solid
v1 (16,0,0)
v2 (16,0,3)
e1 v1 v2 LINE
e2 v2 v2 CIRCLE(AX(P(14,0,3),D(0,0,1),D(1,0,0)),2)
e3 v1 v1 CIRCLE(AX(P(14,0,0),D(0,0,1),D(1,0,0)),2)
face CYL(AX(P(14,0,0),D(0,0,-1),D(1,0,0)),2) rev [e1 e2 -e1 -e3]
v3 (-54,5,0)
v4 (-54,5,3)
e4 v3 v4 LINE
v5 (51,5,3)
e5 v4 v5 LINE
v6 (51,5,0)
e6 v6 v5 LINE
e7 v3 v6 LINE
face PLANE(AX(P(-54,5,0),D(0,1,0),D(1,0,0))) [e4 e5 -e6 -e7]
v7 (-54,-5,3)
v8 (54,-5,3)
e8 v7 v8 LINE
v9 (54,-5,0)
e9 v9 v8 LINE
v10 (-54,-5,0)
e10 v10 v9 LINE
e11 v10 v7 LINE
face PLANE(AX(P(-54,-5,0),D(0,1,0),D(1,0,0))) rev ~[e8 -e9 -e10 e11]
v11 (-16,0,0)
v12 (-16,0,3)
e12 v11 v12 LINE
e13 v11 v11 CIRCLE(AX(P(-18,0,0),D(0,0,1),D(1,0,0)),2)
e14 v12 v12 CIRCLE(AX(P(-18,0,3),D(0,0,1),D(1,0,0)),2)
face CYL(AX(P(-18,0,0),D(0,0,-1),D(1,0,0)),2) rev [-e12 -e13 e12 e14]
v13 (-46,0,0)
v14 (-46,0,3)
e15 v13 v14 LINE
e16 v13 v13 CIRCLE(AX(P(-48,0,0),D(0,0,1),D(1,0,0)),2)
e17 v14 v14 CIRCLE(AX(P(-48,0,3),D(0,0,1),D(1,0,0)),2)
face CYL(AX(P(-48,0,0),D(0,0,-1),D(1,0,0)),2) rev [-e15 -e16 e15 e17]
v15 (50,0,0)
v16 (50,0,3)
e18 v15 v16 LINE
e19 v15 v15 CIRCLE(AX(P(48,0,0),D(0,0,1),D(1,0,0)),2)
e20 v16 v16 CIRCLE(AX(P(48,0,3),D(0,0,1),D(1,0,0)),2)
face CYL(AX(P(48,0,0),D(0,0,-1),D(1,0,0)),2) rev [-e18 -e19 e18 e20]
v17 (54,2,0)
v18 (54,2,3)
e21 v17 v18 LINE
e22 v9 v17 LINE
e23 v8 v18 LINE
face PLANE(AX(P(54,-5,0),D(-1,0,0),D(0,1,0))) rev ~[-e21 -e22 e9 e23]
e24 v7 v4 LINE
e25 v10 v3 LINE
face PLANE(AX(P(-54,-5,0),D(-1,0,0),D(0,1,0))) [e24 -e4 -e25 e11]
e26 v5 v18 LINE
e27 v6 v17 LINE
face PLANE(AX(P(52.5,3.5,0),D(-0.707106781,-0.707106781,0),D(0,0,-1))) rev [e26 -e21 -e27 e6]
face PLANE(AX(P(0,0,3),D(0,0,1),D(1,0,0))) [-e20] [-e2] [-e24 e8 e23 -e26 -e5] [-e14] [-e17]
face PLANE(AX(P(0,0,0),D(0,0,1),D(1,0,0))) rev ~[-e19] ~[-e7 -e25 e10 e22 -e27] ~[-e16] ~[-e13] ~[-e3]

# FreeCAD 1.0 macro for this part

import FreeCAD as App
import Part
import Sketcher


def edges_at(feature, points):
    """Names of the edges that pass closest to the given points."""
    edges = feature.Shape.Edges
    near = lambda p: min(range(len(edges)), key=lambda i: edges[i].distToShape(Part.Vertex(*p))[0])
    return sorted({f"Edge{near(p) + 1}" for p in points})


def add_polygon(sketch, points):
    """Adds a closed chain of lines whose ends are joined by coincident constraints."""
    first, n = sketch.GeometryCount, len(points)
    for a, b in zip(points, points[1:] + points[:1]):
        sketch.addGeometry(Part.LineSegment(App.Vector(*a, 0), App.Vector(*b, 0)), False)
    for i in range(n):
        sketch.addConstraint(Sketcher.Constraint("Coincident", first + i, 2, first + (i + 1) % n, 1))

doc = App.newDocument("Part")
body = doc.addObject("PartDesign::Body", "Body")

sketch1 = body.newObject("Sketcher::SketchObject", "Sketch")
sketch1.AttachmentSupport = (doc.getObject("XY_Plane"), [""])
sketch1.MapMode = "FlatFace"
add_polygon(sketch1, [(-54, 5), (-54, -5), (54, -5), (54, 5)])
sketch1.addGeometry(Part.Circle(App.Vector(-48, 0, 0), App.Vector(0, 0, 1), 2), False)
sketch1.addGeometry(Part.Circle(App.Vector(-18, 0, 0), App.Vector(0, 0, 1), 2), False)
sketch1.addGeometry(Part.Circle(App.Vector(14, 0, 0), App.Vector(0, 0, 1), 2), False)
sketch1.addGeometry(Part.Circle(App.Vector(48, 0, 0), App.Vector(0, 0, 1), 2), False)
sketch1.addConstraint(Sketcher.Constraint("Vertical", 0))
sketch1.addConstraint(Sketcher.Constraint("Horizontal", 1))
sketch1.addConstraint(Sketcher.Constraint("Vertical", 2))
sketch1.addConstraint(Sketcher.Constraint("Horizontal", 3))
sketch1.addConstraint(Sketcher.Constraint("Equal", 4, 5))
sketch1.addConstraint(Sketcher.Constraint("Equal", 5, 6))
sketch1.addConstraint(Sketcher.Constraint("Equal", 6, 7))
sketch1.addConstraint(Sketcher.Constraint("Symmetric", 4, 3, 7, 3, -1, 1))
sketch1.addConstraint(Sketcher.Constraint("Symmetric", 0, 2, 2, 2, -1, 1))
sketch1.addConstraint(Sketcher.Constraint("PointOnObject", 4, 3, -1))
sketch1.addConstraint(Sketcher.Constraint("PointOnObject", 5, 3, -1))
sketch1.addConstraint(Sketcher.Constraint("PointOnObject", 6, 3, -1))
sketch1.addConstraint(Sketcher.Constraint("Diameter", 4, 4.0))
sketch1.addConstraint(Sketcher.Constraint("DistanceX", 1, 1, 1, 2, 108.0))
sketch1.addConstraint(Sketcher.Constraint("DistanceY", 0, 2, 0, 1, 10.0))
sketch1.addConstraint(Sketcher.Constraint("DistanceX", 4, 3, -1, 1, 48.0))
sketch1.addConstraint(Sketcher.Constraint("DistanceX", 5, 3, -1, 1, 18.0))
sketch1.addConstraint(Sketcher.Constraint("DistanceX", -1, 1, 6, 3, 14.0))
pad1 = body.newObject("PartDesign::Pad", "Pad")
pad1.Profile = sketch1
pad1.Length = 3
doc.recompute()

chamfer = body.newObject("PartDesign::Chamfer", "Chamfer")
chamfer.Base = (pad1, edges_at(pad1, [(54, 5, 1.5)]))
chamfer.Size = 3

doc.recompute()
